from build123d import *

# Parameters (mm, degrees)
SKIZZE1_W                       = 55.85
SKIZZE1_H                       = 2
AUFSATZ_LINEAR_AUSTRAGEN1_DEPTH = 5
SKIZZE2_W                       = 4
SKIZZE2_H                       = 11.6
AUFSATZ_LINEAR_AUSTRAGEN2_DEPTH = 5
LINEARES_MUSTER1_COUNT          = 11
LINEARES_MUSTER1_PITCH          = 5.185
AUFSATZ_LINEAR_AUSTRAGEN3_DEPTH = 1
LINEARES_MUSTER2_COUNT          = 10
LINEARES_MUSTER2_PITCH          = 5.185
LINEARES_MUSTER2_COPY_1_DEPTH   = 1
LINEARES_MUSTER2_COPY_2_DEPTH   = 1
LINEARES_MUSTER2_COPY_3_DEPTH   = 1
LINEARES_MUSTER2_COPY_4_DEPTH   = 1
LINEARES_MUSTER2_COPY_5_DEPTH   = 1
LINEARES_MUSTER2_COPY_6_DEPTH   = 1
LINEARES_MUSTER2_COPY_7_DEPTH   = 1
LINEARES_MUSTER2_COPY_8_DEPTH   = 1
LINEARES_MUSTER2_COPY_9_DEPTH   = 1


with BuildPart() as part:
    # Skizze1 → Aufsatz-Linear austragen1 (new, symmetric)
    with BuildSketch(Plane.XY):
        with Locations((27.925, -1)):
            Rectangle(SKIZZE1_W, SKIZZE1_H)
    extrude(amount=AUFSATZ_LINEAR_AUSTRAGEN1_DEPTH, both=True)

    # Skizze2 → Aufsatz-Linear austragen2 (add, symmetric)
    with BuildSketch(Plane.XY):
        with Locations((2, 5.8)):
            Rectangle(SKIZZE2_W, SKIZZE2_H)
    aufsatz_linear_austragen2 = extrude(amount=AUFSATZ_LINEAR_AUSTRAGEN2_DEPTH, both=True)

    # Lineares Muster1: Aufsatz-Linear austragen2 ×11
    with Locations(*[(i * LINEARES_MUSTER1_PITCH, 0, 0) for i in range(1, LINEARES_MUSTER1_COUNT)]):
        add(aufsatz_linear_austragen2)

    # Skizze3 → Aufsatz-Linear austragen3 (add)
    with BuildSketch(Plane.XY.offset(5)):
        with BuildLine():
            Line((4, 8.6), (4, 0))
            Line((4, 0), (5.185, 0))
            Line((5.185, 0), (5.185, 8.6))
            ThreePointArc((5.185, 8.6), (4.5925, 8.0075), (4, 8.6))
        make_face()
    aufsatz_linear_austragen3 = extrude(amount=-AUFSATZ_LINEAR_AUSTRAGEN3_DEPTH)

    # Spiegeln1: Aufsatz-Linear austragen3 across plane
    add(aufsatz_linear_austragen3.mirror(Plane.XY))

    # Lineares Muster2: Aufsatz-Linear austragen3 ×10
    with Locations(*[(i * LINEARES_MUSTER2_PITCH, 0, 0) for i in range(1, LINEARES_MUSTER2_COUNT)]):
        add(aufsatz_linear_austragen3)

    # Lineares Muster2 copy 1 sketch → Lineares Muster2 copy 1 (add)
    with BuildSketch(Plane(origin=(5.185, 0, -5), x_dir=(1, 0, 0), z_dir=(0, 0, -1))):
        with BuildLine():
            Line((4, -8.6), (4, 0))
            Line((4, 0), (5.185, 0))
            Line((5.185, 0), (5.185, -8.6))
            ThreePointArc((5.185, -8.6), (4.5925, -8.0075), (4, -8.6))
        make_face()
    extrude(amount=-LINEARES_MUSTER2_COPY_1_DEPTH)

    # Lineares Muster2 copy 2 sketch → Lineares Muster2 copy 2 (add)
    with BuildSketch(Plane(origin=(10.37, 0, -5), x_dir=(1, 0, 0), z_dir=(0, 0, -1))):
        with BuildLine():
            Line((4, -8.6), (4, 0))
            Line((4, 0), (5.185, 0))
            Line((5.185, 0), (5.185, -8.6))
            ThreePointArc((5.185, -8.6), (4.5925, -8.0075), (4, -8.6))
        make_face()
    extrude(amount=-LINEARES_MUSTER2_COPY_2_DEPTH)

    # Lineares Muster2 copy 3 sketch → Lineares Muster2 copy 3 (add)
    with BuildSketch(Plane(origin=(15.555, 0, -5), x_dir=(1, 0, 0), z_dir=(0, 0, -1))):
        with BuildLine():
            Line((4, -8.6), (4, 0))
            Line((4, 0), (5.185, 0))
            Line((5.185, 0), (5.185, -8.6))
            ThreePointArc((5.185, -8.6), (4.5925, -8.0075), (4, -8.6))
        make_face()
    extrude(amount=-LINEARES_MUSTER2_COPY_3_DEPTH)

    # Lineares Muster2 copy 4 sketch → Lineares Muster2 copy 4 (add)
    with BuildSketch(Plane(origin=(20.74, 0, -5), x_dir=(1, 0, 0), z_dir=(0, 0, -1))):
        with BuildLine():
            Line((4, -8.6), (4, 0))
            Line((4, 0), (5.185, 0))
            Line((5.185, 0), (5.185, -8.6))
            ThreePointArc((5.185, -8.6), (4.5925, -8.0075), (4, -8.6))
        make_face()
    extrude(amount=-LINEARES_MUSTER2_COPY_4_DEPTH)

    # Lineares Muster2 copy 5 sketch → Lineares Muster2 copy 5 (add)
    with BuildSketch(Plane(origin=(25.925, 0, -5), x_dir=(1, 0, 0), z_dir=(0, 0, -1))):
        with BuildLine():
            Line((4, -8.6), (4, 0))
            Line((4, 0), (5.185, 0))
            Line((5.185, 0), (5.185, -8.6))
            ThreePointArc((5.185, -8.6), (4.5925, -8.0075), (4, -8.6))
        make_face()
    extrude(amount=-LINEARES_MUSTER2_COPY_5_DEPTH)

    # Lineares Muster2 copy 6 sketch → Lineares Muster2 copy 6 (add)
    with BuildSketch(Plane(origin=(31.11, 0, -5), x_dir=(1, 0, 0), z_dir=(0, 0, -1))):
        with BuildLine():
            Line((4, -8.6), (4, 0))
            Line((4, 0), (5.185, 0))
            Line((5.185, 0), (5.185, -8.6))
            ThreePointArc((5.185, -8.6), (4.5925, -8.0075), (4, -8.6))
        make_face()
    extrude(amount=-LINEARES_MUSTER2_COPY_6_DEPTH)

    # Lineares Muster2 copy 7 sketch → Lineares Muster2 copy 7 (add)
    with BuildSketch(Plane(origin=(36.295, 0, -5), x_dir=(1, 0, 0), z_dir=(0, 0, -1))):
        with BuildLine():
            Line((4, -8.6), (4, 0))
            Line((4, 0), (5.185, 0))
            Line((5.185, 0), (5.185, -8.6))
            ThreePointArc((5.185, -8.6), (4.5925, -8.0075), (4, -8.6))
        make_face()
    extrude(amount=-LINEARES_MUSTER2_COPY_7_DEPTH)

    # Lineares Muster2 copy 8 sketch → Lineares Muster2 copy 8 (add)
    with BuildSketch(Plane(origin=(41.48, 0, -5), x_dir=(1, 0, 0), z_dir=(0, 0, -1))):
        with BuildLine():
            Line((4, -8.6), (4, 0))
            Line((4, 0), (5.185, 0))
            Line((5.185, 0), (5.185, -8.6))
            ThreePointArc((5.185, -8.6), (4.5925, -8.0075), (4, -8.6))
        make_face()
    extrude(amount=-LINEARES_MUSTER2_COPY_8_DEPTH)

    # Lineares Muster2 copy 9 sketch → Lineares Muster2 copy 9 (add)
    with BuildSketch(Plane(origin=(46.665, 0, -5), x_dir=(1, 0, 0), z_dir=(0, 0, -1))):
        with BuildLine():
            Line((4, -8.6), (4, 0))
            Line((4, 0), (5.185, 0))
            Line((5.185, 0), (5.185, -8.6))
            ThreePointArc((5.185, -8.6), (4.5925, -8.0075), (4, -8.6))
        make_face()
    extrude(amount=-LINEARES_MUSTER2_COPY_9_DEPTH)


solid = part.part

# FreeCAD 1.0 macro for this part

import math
import FreeCAD as App
import Part
import Sketcher

V = App.Vector
Q = App.Units.Quantity

doc = App.newDocument("Part")
body = doc.addObject("PartDesign::Body", "Body")

# Sketch on XY plane
sketch1 = body.newObject("Sketcher::SketchObject", "Sketch")
sketch1.AttachmentSupport = (doc.getObject("XY_Plane"), [""])
sketch1.MapMode = "FlatFace"
sketch1.addGeometry([
    Part.LineSegment(V(0, 0, 0), V(0, -2, 0)),
    Part.LineSegment(V(0, -2, 0), V(55.9, -2, 0)),
    Part.LineSegment(V(55.9, -2, 0), V(55.9, 0, 0)),
    Part.LineSegment(V(55.9, 0, 0), V(0, 0, 0)),
], False)
sketch1.addConstraint([
    Sketcher.Constraint("Coincident", 0, 2, 1, 1),
    Sketcher.Constraint("Coincident", 1, 2, 2, 1),
    Sketcher.Constraint("Coincident", 2, 2, 3, 1),
    Sketcher.Constraint("Coincident", 3, 2, 0, 1),
    Sketcher.Constraint("Vertical", 0),
    Sketcher.Constraint("Horizontal", 1),
    Sketcher.Constraint("Vertical", 2),
    Sketcher.Constraint("Horizontal", 3),
    Sketcher.Constraint("Coincident", 3, 2, -1, 1),
    Sketcher.Constraint("DistanceY", 0, 2, 0, 1, Q("2 mm")),
    Sketcher.Constraint("DistanceX", 1, 1, 1, 2, Q("55.85 mm")),
])
pad1 = body.newObject("PartDesign::Pad", "Pad")
pad1.Profile = sketch1
pad1.Length = 10
pad1.Midplane = True

# Sketch on XY plane
sketch2 = body.newObject("Sketcher::SketchObject", "Sketch001")
sketch2.AttachmentSupport = (doc.getObject("XY_Plane"), [""])
sketch2.MapMode = "FlatFace"
sketch2.addGeometry([
    Part.LineSegment(V(0, 11.6, 0), V(0, 0, 0)),
    Part.LineSegment(V(0, 0, 0), V(4, 0, 0)),
    Part.LineSegment(V(4, 0, 0), V(4, 11.6, 0)),
    Part.LineSegment(V(4, 11.6, 0), V(0, 11.6, 0)),
], False)
sketch2.addConstraint([
    Sketcher.Constraint("Coincident", 0, 2, 1, 1),
    Sketcher.Constraint("Coincident", 1, 2, 2, 1),
    Sketcher.Constraint("Coincident", 2, 2, 3, 1),
    Sketcher.Constraint("Coincident", 3, 2, 0, 1),
    Sketcher.Constraint("Vertical", 0),
    Sketcher.Constraint("Horizontal", 1),
    Sketcher.Constraint("Vertical", 2),
    Sketcher.Constraint("Horizontal", 3),
    Sketcher.Constraint("Coincident", 0, 2, -1, 1),
    Sketcher.Constraint("DistanceX", 1, 1, 1, 2, Q("4 mm")),
    Sketcher.Constraint("DistanceY", 0, 2, 0, 1, Q("11.6 mm")),
])
pad2 = body.newObject("PartDesign::Pad", "Pad001")
pad2.Profile = sketch2
pad2.Length = 10
pad2.Midplane = True
doc.recompute()

linearpattern = body.newObject("PartDesign::LinearPattern", "LinearPattern")
linearpattern.Originals = [pad2]
linearpattern.Direction = (doc.getObject("X_Axis"), [""])
linearpattern.Mode = "offset"
linearpattern.Offset = 5.185
linearpattern.Occurrences = 11
body.Tip = linearpattern

# Sketch on XY plane
sketch3 = body.newObject("Sketcher::SketchObject", "Sketch002")
sketch3.AttachmentSupport = (doc.getObject("XY_Plane"), [""])
sketch3.MapMode = "FlatFace"
sketch3.AttachmentOffset = App.Placement(V(0, 0, 5), App.Rotation())
sketch3.addGeometry([
    Part.LineSegment(V(4, 8.6, 0), V(4, 0, 0)),
    Part.LineSegment(V(4, 0, 0), V(5.2, 0, 0)),
    Part.LineSegment(V(5.2, 0, 0), V(5.2, 8.6, 0)),
    Part.ArcOfCircle(Part.Circle(V(4.6, 8.6, 0), V(0, 0, 1), 0.6), math.radians(180), math.radians(360)),
], False)
sketch3.addConstraint([
    Sketcher.Constraint("Coincident", 0, 2, 1, 1),
    Sketcher.Constraint("Coincident", 1, 2, 2, 1),
    Sketcher.Constraint("Tangent", 2, 2, 3, 2),
    Sketcher.Constraint("Tangent", 3, 1, 0, 1),
    Sketcher.Constraint("Vertical", 0),
    Sketcher.Constraint("Horizontal", 1),
    Sketcher.Constraint("Vertical", 2),
    Sketcher.Constraint("PointOnObject", 0, 2, -1),
    Sketcher.Constraint("DistanceY", 0, 2, 0, 1, Q("8.6 mm")),
    Sketcher.Constraint("DistanceX", -1, 1, 0, 2, Q("4 mm")),
    Sketcher.Constraint("Radius", 3, Q("0.5925 mm")),
])
pad3 = body.newObject("PartDesign::Pad", "Pad002")
pad3.Profile = sketch3
pad3.Length = 1
pad3.Reversed = True
doc.recompute()

mirrored = body.newObject("PartDesign::Mirrored", "Mirrored")
mirrored.Originals = [pad3]
mirrored.MirrorPlane = (doc.getObject("XY_Plane"), [""])
body.Tip = mirrored
doc.recompute()

linearpattern2 = body.newObject("PartDesign::LinearPattern", "LinearPattern001")
linearpattern2.Originals = [pad3]
linearpattern2.Direction = (doc.getObject("X_Axis"), [""])
linearpattern2.Mode = "offset"
linearpattern2.Offset = 5.185
linearpattern2.Occurrences = 10
body.Tip = linearpattern2

# Sketch on XY plane
sketch4 = body.newObject("Sketcher::SketchObject", "Sketch003")
sketch4.AttachmentSupport = (doc.getObject("XY_Plane"), [""])
sketch4.MapMode = "FlatFace"
sketch4.AttachmentOffset = App.Placement(V(0, 0, -5), App.Rotation())
sketch4.addGeometry([
    Part.LineSegment(V(9.2, 0, 0), V(9.2, 8.6, 0)),
    Part.ArcOfCircle(Part.Circle(V(9.8, 8.6, 0), V(0, 0, 1), 0.6), math.radians(180), math.radians(360)),
    Part.LineSegment(V(10.4, 8.6, 0), V(10.4, 0, 0)),
    Part.LineSegment(V(10.4, 0, 0), V(9.2, 0, 0)),
], False)
sketch4.addConstraint([
    Sketcher.Constraint("Tangent", 0, 2, 1, 1),
    Sketcher.Constraint("Tangent", 1, 2, 2, 1),
    Sketcher.Constraint("Coincident", 2, 2, 3, 1),
    Sketcher.Constraint("Coincident", 3, 2, 0, 1),
    Sketcher.Constraint("Vertical", 0),
    Sketcher.Constraint("Vertical", 2),
    Sketcher.Constraint("Horizontal", 3),
    Sketcher.Constraint("PointOnObject", 2, 2, -1),
    Sketcher.Constraint("DistanceY", 0, 1, 0, 2, Q("8.6 mm")),
    Sketcher.Constraint("Radius", 1, Q("0.5925 mm")),
    Sketcher.Constraint("DistanceX", -1, 1, 1, 2, Q("10.37 mm")),
])
pad4 = body.newObject("PartDesign::Pad", "Pad003")
pad4.Profile = sketch4
pad4.Length = 1

# Sketch on XY plane
sketch5 = body.newObject("Sketcher::SketchObject", "Sketch004")
sketch5.AttachmentSupport = (doc.getObject("XY_Plane"), [""])
sketch5.MapMode = "FlatFace"
sketch5.AttachmentOffset = App.Placement(V(0, 0, -5), App.Rotation())
sketch5.addGeometry([
    Part.LineSegment(V(14.4, 0, 0), V(14.4, 8.6, 0)),
    Part.ArcOfCircle(Part.Circle(V(15, 8.6, 0), V(0, 0, 1), 0.6), math.radians(180), math.radians(360)),
    Part.LineSegment(V(15.6, 8.6, 0), V(15.6, 0, 0)),
    Part.LineSegment(V(15.6, 0, 0), V(14.4, 0, 0)),
], False)
sketch5.addConstraint([
    Sketcher.Constraint("Tangent", 0, 2, 1, 1),
    Sketcher.Constraint("Tangent", 1, 2, 2, 1),
    Sketcher.Constraint("Coincident", 2, 2, 3, 1),
    Sketcher.Constraint("Coincident", 3, 2, 0, 1),
    Sketcher.Constraint("Vertical", 0),
    Sketcher.Constraint("Vertical", 2),
    Sketcher.Constraint("Horizontal", 3),
    Sketcher.Constraint("PointOnObject", 2, 2, -1),
    Sketcher.Constraint("DistanceY", 0, 1, 0, 2, Q("8.6 mm")),
    Sketcher.Constraint("Radius", 1, Q("0.5925 mm")),
    Sketcher.Constraint("DistanceX", -1, 1, 0, 2, Q("14.37 mm")),
])
pad5 = body.newObject("PartDesign::Pad", "Pad004")
pad5.Profile = sketch5
pad5.Length = 1

# Sketch on XY plane
sketch6 = body.newObject("Sketcher::SketchObject", "Sketch005")
sketch6.AttachmentSupport = (doc.getObject("XY_Plane"), [""])
sketch6.MapMode = "FlatFace"
sketch6.AttachmentOffset = App.Placement(V(0, 0, -5), App.Rotation())
sketch6.addGeometry([
    Part.LineSegment(V(19.6, 0, 0), V(19.6, 8.6, 0)),
    Part.ArcOfCircle(Part.Circle(V(20.1, 8.6, 0), V(0, 0, 1), 0.6), math.radians(180), math.radians(360)),
    Part.LineSegment(V(20.7, 8.6, 0), V(20.7, 0, 0)),
    Part.LineSegment(V(20.7, 0, 0), V(19.6, 0, 0)),
], False)
sketch6.addConstraint([
    Sketcher.Constraint("Tangent", 0, 2, 1, 1),
    Sketcher.Constraint("Tangent", 1, 2, 2, 1),
    Sketcher.Constraint("Coincident", 2, 2, 3, 1),
    Sketcher.Constraint("Coincident", 3, 2, 0, 1),
    Sketcher.Constraint("Vertical", 0),
    Sketcher.Constraint("Vertical", 2),
    Sketcher.Constraint("Horizontal", 3),
    Sketcher.Constraint("PointOnObject", 2, 2, -1),
    Sketcher.Constraint("DistanceY", 0, 1, 0, 2, Q("8.6 mm")),
    Sketcher.Constraint("Radius", 1, Q("0.5925 mm")),
    Sketcher.Constraint("DistanceX", -1, 1, 1, 2, Q("20.74 mm")),
])
pad6 = body.newObject("PartDesign::Pad", "Pad005")
pad6.Profile = sketch6
pad6.Length = 1

# Sketch on XY plane
sketch7 = body.newObject("Sketcher::SketchObject", "Sketch006")
sketch7.AttachmentSupport = (doc.getObject("XY_Plane"), [""])
sketch7.MapMode = "FlatFace"
sketch7.AttachmentOffset = App.Placement(V(0, 0, -5), App.Rotation())
sketch7.addGeometry([
    Part.LineSegment(V(24.7, 0, 0), V(24.7, 8.6, 0)),
    Part.ArcOfCircle(Part.Circle(V(25.3, 8.6, 0), V(0, 0, 1), 0.6), math.radians(180), math.radians(360)),
    Part.LineSegment(V(25.9, 8.6, 0), V(25.9, 0, 0)),
    Part.LineSegment(V(25.9, 0, 0), V(24.7, 0, 0)),
], False)
sketch7.addConstraint([
    Sketcher.Constraint("Tangent", 0, 2, 1, 1),
    Sketcher.Constraint("Tangent", 1, 2, 2, 1),
    Sketcher.Constraint("Coincident", 2, 2, 3, 1),
    Sketcher.Constraint("Coincident", 3, 2, 0, 1),
    Sketcher.Constraint("Vertical", 0),
    Sketcher.Constraint("Vertical", 2),
    Sketcher.Constraint("Horizontal", 3),
    Sketcher.Constraint("PointOnObject", 2, 2, -1),
    Sketcher.Constraint("DistanceY", 0, 1, 0, 2, Q("8.6 mm")),
    Sketcher.Constraint("Radius", 1, Q("0.5925 mm")),
    Sketcher.Constraint("DistanceX", -1, 1, 0, 2, Q("24.74 mm")),
])
pad7 = body.newObject("PartDesign::Pad", "Pad006")
pad7.Profile = sketch7
pad7.Length = 1

# Sketch on XY plane
sketch8 = body.newObject("Sketcher::SketchObject", "Sketch007")
sketch8.AttachmentSupport = (doc.getObject("XY_Plane"), [""])
sketch8.MapMode = "FlatFace"
sketch8.AttachmentOffset = App.Placement(V(0, 0, -5), App.Rotation())
sketch8.addGeometry([
    Part.LineSegment(V(29.9, 0, 0), V(29.9, 8.6, 0)),
    Part.ArcOfCircle(Part.Circle(V(30.5, 8.6, 0), V(0, 0, 1), 0.6), math.radians(180), math.radians(360)),
    Part.LineSegment(V(31.1, 8.6, 0), V(31.1, 0, 0)),
    Part.LineSegment(V(31.1, 0, 0), V(29.9, 0, 0)),
], False)
sketch8.addConstraint([
    Sketcher.Constraint("Tangent", 0, 2, 1, 1),
    Sketcher.Constraint("Tangent", 1, 2, 2, 1),
    Sketcher.Constraint("Coincident", 2, 2, 3, 1),
    Sketcher.Constraint("Coincident", 3, 2, 0, 1),
    Sketcher.Constraint("Vertical", 0),
    Sketcher.Constraint("Vertical", 2),
    Sketcher.Constraint("Horizontal", 3),
    Sketcher.Constraint("PointOnObject", 2, 2, -1),
    Sketcher.Constraint("DistanceY", 0, 1, 0, 2, Q("8.6 mm")),
    Sketcher.Constraint("Radius", 1, Q("0.5925 mm")),
    Sketcher.Constraint("DistanceX", -1, 1, 1, 2, Q("31.11 mm")),
])
pad8 = body.newObject("PartDesign::Pad", "Pad007")
pad8.Profile = sketch8
pad8.Length = 1

# Sketch on XY plane
sketch9 = body.newObject("Sketcher::SketchObject", "Sketch008")
sketch9.AttachmentSupport = (doc.getObject("XY_Plane"), [""])
sketch9.MapMode = "FlatFace"
sketch9.AttachmentOffset = App.Placement(V(0, 0, -5), App.Rotation())
sketch9.addGeometry([
    Part.LineSegment(V(35.1, 0, 0), V(35.1, 8.6, 0)),
    Part.ArcOfCircle(Part.Circle(V(35.7, 8.6, 0), V(0, 0, 1), 0.6), math.radians(180), math.radians(360)),
    Part.LineSegment(V(36.3, 8.6, 0), V(36.3, 0, 0)),
    Part.LineSegment(V(36.3, 0, 0), V(35.1, 0, 0)),
], False)
sketch9.addConstraint([
    Sketcher.Constraint("Tangent", 0, 2, 1, 1),
    Sketcher.Constraint("Tangent", 1, 2, 2, 1),
    Sketcher.Constraint("Coincident", 2, 2, 3, 1),
    Sketcher.Constraint("Coincident", 3, 2, 0, 1),
    Sketcher.Constraint("Vertical", 0),
    Sketcher.Constraint("Vertical", 2),
    Sketcher.Constraint("Horizontal", 3),
    Sketcher.Constraint("PointOnObject", 2, 2, -1),
    Sketcher.Constraint("DistanceY", 0, 1, 0, 2, Q("8.6 mm")),
    Sketcher.Constraint("Radius", 1, Q("0.5925 mm")),
    Sketcher.Constraint("DistanceX", -1, 1, 0, 2, Q("35.11 mm")),
])
pad9 = body.newObject("PartDesign::Pad", "Pad008")
pad9.Profile = sketch9
pad9.Length = 1

# Sketch on XY plane
sketch10 = body.newObject("Sketcher::SketchObject", "Sketch009")
sketch10.AttachmentSupport = (doc.getObject("XY_Plane"), [""])
sketch10.MapMode = "FlatFace"
sketch10.AttachmentOffset = App.Placement(V(0, 0, -5), App.Rotation())
sketch10.addGeometry([
    Part.LineSegment(V(40.3, 0, 0), V(40.3, 8.6, 0)),
    Part.ArcOfCircle(Part.Circle(V(40.9, 8.6, 0), V(0, 0, 1), 0.6), math.radians(180), math.radians(360)),
    Part.LineSegment(V(41.5, 8.6, 0), V(41.5, 0, 0)),
    Part.LineSegment(V(41.5, 0, 0), V(40.3, 0, 0)),
], False)
sketch10.addConstraint([
    Sketcher.Constraint("Tangent", 0, 2, 1, 1),
    Sketcher.Constraint("Tangent", 1, 2, 2, 1),
    Sketcher.Constraint("Coincident", 2, 2, 3, 1),
    Sketcher.Constraint("Coincident", 3, 2, 0, 1),
    Sketcher.Constraint("Vertical", 0),
    Sketcher.Constraint("Vertical", 2),
    Sketcher.Constraint("Horizontal", 3),
    Sketcher.Constraint("PointOnObject", 2, 2, -1),
    Sketcher.Constraint("DistanceY", 0, 1, 0, 2, Q("8.6 mm")),
    Sketcher.Constraint("Radius", 1, Q("0.5925 mm")),
    Sketcher.Constraint("DistanceX", -1, 1, 1, 2, Q("41.48 mm")),
])
pad10 = body.newObject("PartDesign::Pad", "Pad009")
pad10.Profile = sketch10
pad10.Length = 1

# Sketch on XY plane
sketch11 = body.newObject("Sketcher::SketchObject", "Sketch010")
sketch11.AttachmentSupport = (doc.getObject("XY_Plane"), [""])
sketch11.MapMode = "FlatFace"
sketch11.AttachmentOffset = App.Placement(V(0, 0, -5), App.Rotation())
sketch11.addGeometry([
    Part.LineSegment(V(45.5, 0, 0), V(45.5, 8.6, 0)),
    Part.ArcOfCircle(Part.Circle(V(46.1, 8.6, 0), V(0, 0, 1), 0.6), math.radians(180), math.radians(360)),
    Part.LineSegment(V(46.7, 8.6, 0), V(46.7, 0, 0)),
    Part.LineSegment(V(46.7, 0, 0), V(45.5, 0, 0)),
], False)
sketch11.addConstraint([
    Sketcher.Constraint("Tangent", 0, 2, 1, 1),
    Sketcher.Constraint("Tangent", 1, 2, 2, 1),
    Sketcher.Constraint("Coincident", 2, 2, 3, 1),
    Sketcher.Constraint("Coincident", 3, 2, 0, 1),
    Sketcher.Constraint("Vertical", 0),
    Sketcher.Constraint("Vertical", 2),
    Sketcher.Constraint("Horizontal", 3),
    Sketcher.Constraint("PointOnObject", 2, 2, -1),
    Sketcher.Constraint("DistanceY", 0, 1, 0, 2, Q("8.6 mm")),
    Sketcher.Constraint("Radius", 1, Q("0.5925 mm")),
    Sketcher.Constraint("DistanceX", -1, 1, 0, 2, Q("45.48 mm")),
])
pad11 = body.newObject("PartDesign::Pad", "Pad010")
pad11.Profile = sketch11
pad11.Length = 1

# Sketch on XY plane
sketch12 = body.newObject("Sketcher::SketchObject", "Sketch011")
sketch12.AttachmentSupport = (doc.getObject("XY_Plane"), [""])
sketch12.MapMode = "FlatFace"
sketch12.AttachmentOffset = App.Placement(V(0, 0, -5), App.Rotation())
sketch12.addGeometry([
    Part.LineSegment(V(50.7, 0, 0), V(50.7, 8.6, 0)),
    Part.ArcOfCircle(Part.Circle(V(51.3, 8.6, 0), V(0, 0, 1), 0.6), math.radians(180), math.radians(360)),
    Part.LineSegment(V(51.9, 8.6, 0), V(51.9, 0, 0)),
    Part.LineSegment(V(51.9, 0, 0), V(50.7, 0, 0)),
], False)
sketch12.addConstraint([
    Sketcher.Constraint("Tangent", 0, 2, 1, 1),
    Sketcher.Constraint("Tangent", 1, 2, 2, 1),
    Sketcher.Constraint("Coincident", 2, 2, 3, 1),
    Sketcher.Constraint("Coincident", 3, 2, 0, 1),
    Sketcher.Constraint("Vertical", 0),
    Sketcher.Constraint("Vertical", 2),
    Sketcher.Constraint("Horizontal", 3),
    Sketcher.Constraint("PointOnObject", 2, 2, -1),
    Sketcher.Constraint("DistanceY", 0, 1, 0, 2, Q("8.6 mm")),
    Sketcher.Constraint("Radius", 1, Q("0.5925 mm")),
    Sketcher.Constraint("DistanceX", -1, 1, 1, 2, Q("51.85 mm")),
])
pad12 = body.newObject("PartDesign::Pad", "Pad011")
pad12.Profile = sketch12
pad12.Length = 1

doc.recompute()
